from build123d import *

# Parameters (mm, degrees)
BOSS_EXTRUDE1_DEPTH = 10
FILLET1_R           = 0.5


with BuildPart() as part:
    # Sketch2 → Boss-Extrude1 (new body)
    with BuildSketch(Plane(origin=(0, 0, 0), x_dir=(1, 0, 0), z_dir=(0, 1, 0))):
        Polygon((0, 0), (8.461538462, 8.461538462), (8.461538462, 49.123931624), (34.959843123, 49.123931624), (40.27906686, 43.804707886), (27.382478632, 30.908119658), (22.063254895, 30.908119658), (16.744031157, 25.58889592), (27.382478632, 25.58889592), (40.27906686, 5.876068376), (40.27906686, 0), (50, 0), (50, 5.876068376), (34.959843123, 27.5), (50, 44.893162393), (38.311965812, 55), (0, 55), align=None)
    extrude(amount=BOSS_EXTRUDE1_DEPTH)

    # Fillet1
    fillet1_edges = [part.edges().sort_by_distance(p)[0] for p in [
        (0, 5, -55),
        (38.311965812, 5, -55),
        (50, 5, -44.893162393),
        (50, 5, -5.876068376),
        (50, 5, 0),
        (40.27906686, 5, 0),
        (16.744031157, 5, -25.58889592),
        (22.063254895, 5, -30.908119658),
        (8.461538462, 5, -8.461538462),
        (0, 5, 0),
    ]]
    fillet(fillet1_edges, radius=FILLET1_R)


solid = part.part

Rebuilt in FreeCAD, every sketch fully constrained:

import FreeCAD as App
import Part
import Sketcher
from FreeCAD import Vector
Q = App.Units.Quantity


def edges_at(feature, points):
    """Names of the edges that pass closest to the given points."""
    edges = feature.Shape.Edges
    near = lambda p: min(range(len(edges)), key=lambda i: edges[i].distToShape(Part.Vertex(*p))[0])
    return sorted({f"Edge{near(p) + 1}" for p in points})


def add_polygon(sketch, points):
    """Adds a closed chain of lines whose ends are joined by coincident constraints."""
    first, n = sketch.GeometryCount, len(points)
    for a, b in zip(points, points[1:] + points[:1]):
        sketch.addGeometry(Part.LineSegment(App.Vector(*a, 0), App.Vector(*b, 0)), False)
    for i in range(n):
        sketch.addConstraint(Sketcher.Constraint("Coincident", first + i, 2, first + (i + 1) % n, 1))

doc = App.newDocument("Part")
body = doc.addObject("PartDesign::Body", "Body")

# Sketch on XZ plane
sketch1 = doc.addObject("Sketcher::SketchObject", "Sketch")
body.addObject(sketch1)
sketch1.AttachmentSupport = (doc.XZ_Plane, [""])
sketch1.MapMode = "FlatFace"
add_polygon(sketch1, [(0, 0), (8.461538, -8.461538), (8.461538, -49.123932), (34.959843, -49.123932), (40.279067, -43.804708), (27.382479, -30.90812), (22.063255, -30.90812), (16.744031, -25.588896), (27.382479, -25.588896), (40.279067, -5.876068), (40.279067, 0), (50, 0), (50, -5.876068), (34.959843, -27.5), (50, -44.893162), (38.311966, -55), (0, -55)])  # lines 0-16
sketch1.addConstraint([
    Sketcher.Constraint("Vertical", 1),
    Sketcher.Constraint("Horizontal", 2),
    Sketcher.Constraint("Horizontal", 5),
    Sketcher.Constraint("Horizontal", 7),
    Sketcher.Constraint("Vertical", 9),
    Sketcher.Constraint("Horizontal", 10),
    Sketcher.Constraint("Vertical", 11),
    Sketcher.Constraint("Horizontal", 15),
    Sketcher.Constraint("Vertical", 16),
    Sketcher.Constraint("Coincident", 16, 2, -1, 1),
    Sketcher.Constraint("PointOnObject", 9, 2, -1),
    Sketcher.Constraint("Perpendicular", 0, 3),
    Sketcher.Constraint("Perpendicular", 3, 4),
    Sketcher.Constraint("Parallel", 4, 6),
    Sketcher.Constraint("Perpendicular", 13, 14),
    Sketcher.Constraint("Horizontal", 8, 2, 11, 2),
    Sketcher.Constraint("Vertical", 4, 2, 7, 2),
    Sketcher.Constraint("Vertical", 3, 2, 8, 2),
    Sketcher.Constraint("Vertical", 2, 2, 12, 2),
    Sketcher.Constraint("Vertical", 11, 2, 13, 2),
    Sketcher.Constraint("Equal", 3, 6),
    Sketcher.Constraint("DistanceY", 16, 1, 16, 2, Q("55 mm")),
    Sketcher.Constraint("Angle", 0, Q("-45 deg")),
    Sketcher.Constraint("DistanceX", -1, 1, 10, 2, Q("50 mm")),
    Sketcher.Constraint("DistanceY", 12, 2, -1, 1, Q("27.5 mm")),
    Sketcher.Constraint("DistanceY", 9, 1, 9, 2, Q("5.876068 mm")),
    Sketcher.Constraint("DistanceX", 14, 2, 3, 2, Q("1.967101 mm")),
    Sketcher.Constraint("Distance", 3, Q("7.522518 mm")),
    Sketcher.Constraint("Distance", 4, Q("18.23853 mm")),
    Sketcher.Constraint("Distance", 8, Q("23.556688 mm")),
    Sketcher.Constraint("DistanceX", 2, 1, 2, 2, Q("26.498305 mm")),
    Sketcher.Constraint("DistanceX", 5, 2, 5, 1, Q("5.319224 mm")),
    Sketcher.Constraint("DistanceX", 10, 1, 10, 2, Q("9.720933 mm")),
])
pad1 = doc.addObject("PartDesign::Pad", "Pad")
body.addObject(pad1)
pad1.Profile = sketch1
pad1.Length = 10
pad1.Reversed = True
doc.recompute()

fillet = doc.addObject("PartDesign::Fillet", "Fillet")
body.addObject(fillet)
fillet.Base = (pad1, edges_at(pad1, [
    (0, 5, -55),
    (38.312, 5, -55),
    (50, 5, -44.893),
    (50, 5, -5.876),
    (50, 5, 0),
    (40.279, 5, 0),
    (16.744, 5, -25.589),
    (22.063, 5, -30.908),
    (8.462, 5, -8.462),
    (0, 5, 0),
]))
fillet.Radius = 0.5

doc.recompute()
